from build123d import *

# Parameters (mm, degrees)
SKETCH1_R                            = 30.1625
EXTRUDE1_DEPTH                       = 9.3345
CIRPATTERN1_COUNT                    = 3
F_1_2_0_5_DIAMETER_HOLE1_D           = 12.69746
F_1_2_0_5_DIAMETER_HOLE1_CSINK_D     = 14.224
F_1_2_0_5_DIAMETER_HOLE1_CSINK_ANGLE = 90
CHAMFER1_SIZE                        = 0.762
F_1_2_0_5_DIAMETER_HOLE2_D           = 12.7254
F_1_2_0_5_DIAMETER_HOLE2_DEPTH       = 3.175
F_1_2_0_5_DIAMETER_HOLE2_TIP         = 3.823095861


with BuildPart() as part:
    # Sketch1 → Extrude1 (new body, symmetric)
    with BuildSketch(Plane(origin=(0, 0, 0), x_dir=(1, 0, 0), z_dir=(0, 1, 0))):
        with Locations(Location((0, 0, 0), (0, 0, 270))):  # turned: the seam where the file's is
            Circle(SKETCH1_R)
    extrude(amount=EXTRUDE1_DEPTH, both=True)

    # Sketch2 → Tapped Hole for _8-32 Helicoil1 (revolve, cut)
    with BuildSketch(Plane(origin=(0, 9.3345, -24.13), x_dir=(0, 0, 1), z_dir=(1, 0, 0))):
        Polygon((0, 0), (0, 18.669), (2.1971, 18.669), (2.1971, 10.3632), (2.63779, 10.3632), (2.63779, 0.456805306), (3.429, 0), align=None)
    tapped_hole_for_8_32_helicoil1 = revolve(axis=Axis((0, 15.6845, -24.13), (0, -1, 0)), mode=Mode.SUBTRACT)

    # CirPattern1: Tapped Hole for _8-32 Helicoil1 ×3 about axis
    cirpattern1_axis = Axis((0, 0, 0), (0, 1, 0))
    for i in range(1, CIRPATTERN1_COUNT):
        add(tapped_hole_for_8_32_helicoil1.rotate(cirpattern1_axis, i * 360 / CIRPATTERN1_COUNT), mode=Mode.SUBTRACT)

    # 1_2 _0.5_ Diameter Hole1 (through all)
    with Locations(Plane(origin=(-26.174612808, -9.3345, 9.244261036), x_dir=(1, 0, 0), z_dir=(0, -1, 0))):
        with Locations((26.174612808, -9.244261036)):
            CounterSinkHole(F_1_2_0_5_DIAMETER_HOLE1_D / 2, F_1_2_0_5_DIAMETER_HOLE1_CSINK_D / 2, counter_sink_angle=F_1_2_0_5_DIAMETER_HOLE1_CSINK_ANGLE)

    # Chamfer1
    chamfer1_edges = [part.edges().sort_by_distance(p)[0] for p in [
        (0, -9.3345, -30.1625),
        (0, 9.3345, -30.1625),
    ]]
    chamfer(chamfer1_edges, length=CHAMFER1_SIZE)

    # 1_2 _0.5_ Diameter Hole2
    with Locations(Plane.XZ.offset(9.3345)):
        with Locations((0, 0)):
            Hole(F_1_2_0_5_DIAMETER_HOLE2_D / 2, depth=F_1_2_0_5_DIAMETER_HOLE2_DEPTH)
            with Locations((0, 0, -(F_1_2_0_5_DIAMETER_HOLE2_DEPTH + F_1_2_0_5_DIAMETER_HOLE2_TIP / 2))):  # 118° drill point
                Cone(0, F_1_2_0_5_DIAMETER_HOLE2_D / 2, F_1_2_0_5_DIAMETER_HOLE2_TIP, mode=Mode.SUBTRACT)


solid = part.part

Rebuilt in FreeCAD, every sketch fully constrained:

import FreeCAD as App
import Part
import Sketcher

V = App.Vector
Q = App.Units.Quantity


def edges_at(feature, points):
    """Names of the edges that pass closest to the given points."""
    edges = feature.Shape.Edges
    near = lambda p: min(range(len(edges)), key=lambda i: edges[i].distToShape(Part.Vertex(*p))[0])
    return sorted({f"Edge{near(p) + 1}" for p in points})

doc = App.newDocument("Part")
body = doc.addObject("PartDesign::Body", "Body")

# Sketch on XZ plane
sketch1 = body.newObject("Sketcher::SketchObject", "Sketch")
sketch1.AttachmentSupport = (doc.getObject("XZ_Plane"), [""])
sketch1.MapMode = "FlatFace"
sketch1.addGeometry(Part.Circle(V(0, 0, 0), V(0, 0, 1), 30.1625), False)
sketch1.addConstraint([
    Sketcher.Constraint("Coincident", 0, 3, -1, 1),
    Sketcher.Constraint("Diameter", 0, Q("2.375 in")),
])
pad1 = body.newObject("PartDesign::Pad", "Pad")
pad1.Profile = sketch1
pad1.Length = Q("0.735 in")
pad1.Midplane = True

# Sketch on YZ plane
sketch2 = body.newObject("Sketcher::SketchObject", "Sketch001")
sketch2.AttachmentSupport = (doc.getObject("YZ_Plane"), [""])
sketch2.MapMode = "FlatFace"
sketch2.addGeometry([
    Part.LineSegment(V(-9.3345, -24.13, 0), V(9.3345, -24.13, 0)),  # 0
    Part.LineSegment(V(9.3345, -24.13, 0), V(9.3345, -20.701, 0)),  # 1
    Part.LineSegment(V(9.3345, -20.701, 0), V(8.877695, -21.49221, 0)),  # 2
    Part.LineSegment(V(8.877695, -21.49221, 0), V(-1.0287, -21.49221, 0)),  # 3
    Part.LineSegment(V(-1.0287, -21.49221, 0), V(-1.0287, -21.9329, 0)),  # 4
    Part.LineSegment(V(-1.0287, -21.9329, 0), V(-9.3345, -21.9329, 0)),  # 5
    Part.LineSegment(V(-9.3345, -21.9329, 0), V(-9.3345, -24.13, 0)),  # 6
], False)
sketch2.addGeometry(Part.LineSegment(V(9.3345, -24.13, 0), V(-9.3345, -24.13, 0)), True)  # axis
sketch2.addConstraint([
    Sketcher.Constraint("Coincident", 0, 2, 1, 1),
    Sketcher.Constraint("Coincident", 1, 2, 2, 1),
    Sketcher.Constraint("Coincident", 2, 2, 3, 1),
    Sketcher.Constraint("Coincident", 3, 2, 4, 1),
    Sketcher.Constraint("Coincident", 4, 2, 5, 1),
    Sketcher.Constraint("Coincident", 5, 2, 6, 1),
    Sketcher.Constraint("Coincident", 6, 2, 0, 1),
    Sketcher.Constraint("Horizontal", 0),
    Sketcher.Constraint("Vertical", 1),
    Sketcher.Constraint("Horizontal", 3),
    Sketcher.Constraint("Vertical", 4),
    Sketcher.Constraint("Horizontal", 5),
    Sketcher.Constraint("Vertical", 6),
    Sketcher.Constraint("Horizontal", 7),
    Sketcher.Constraint("Coincident", 7, 1, 0, 2),
    Sketcher.Constraint("Vertical", 5, 2, 7, 2),
    Sketcher.Constraint("Angle", 2, Q("-120 deg")),
    Sketcher.Constraint("DistanceX", 0, 1, 0, 2, Q("0.735 in")),
    Sketcher.Constraint("DistanceX", 5, 2, 5, 1, Q("0.327 in")),
    Sketcher.Constraint("DistanceY", 1, 1, 1, 2, Q("0.135 in")),
    Sketcher.Constraint("DistanceY", 0, 2, -1, 1, Q("0.95 in")),
    Sketcher.Constraint("DistanceY", 6, 2, 6, 1, Q("0.0865 in")),
    Sketcher.Constraint("DistanceX", -1, 1, 0, 2, Q("0.3675 in")),
    Sketcher.Constraint("DistanceY", 4, 2, 4, 1, 0.44069),
])
groove = body.newObject("PartDesign::Groove", "Groove")
groove.Profile = sketch2
groove.ReferenceAxis = (sketch2, ["Axis0"])
groove.Angle = 360
doc.recompute()

polarpattern = body.newObject("PartDesign::PolarPattern", "PolarPattern")
polarpattern.Originals = [groove]
polarpattern.Axis = (doc.getObject("Y_Axis"), [""])
polarpattern.Angle = 360
polarpattern.Occurrences = 3
body.Tip = polarpattern

# Sketch on XZ plane
sketch3 = body.newObject("Sketcher::SketchObject", "Sketch002")
sketch3.AttachmentSupport = (doc.getObject("XZ_Plane"), [""])
sketch3.MapMode = "FlatFace"
sketch3.AttachmentOffset = App.Placement(V(0, 0, 0.3675 * 25.4), App.Rotation())
sketch3.addGeometry(Part.Circle(V(0, 0, 0), V(0, 0, 1), 6.34873), False)
sketch3.addConstraint([
    Sketcher.Constraint("Coincident", 0, 3, -1, 1),
    Sketcher.Constraint("Diameter", 0, Q("0.4999 in")),
])
doc.recompute()
hole = body.newObject("PartDesign::Hole", "Hole")
hole.Profile = sketch3
hole.ThreadType = "None"
hole.Diameter = Q("0.4999 in")
hole.DepthType = "ThroughAll"
hole.HoleCutType = "Countersink"
hole.HoleCutDiameter = Q("0.56 in")
hole.HoleCutCountersinkAngle = 90
doc.recompute()

chamfer = body.newObject("PartDesign::Chamfer", "Chamfer")
chamfer.Base = (hole, edges_at(hole, [(0, -9.335, -30.163), (0, 9.335, -30.163)]))
chamfer.Size = Q("0.03 in")

# Sketch on XZ plane
sketch4 = body.newObject("Sketcher::SketchObject", "Sketch003")
sketch4.AttachmentSupport = (doc.getObject("XZ_Plane"), [""])
sketch4.MapMode = "FlatFace"
sketch4.AttachmentOffset = App.Placement(V(0, 0, 0.3675 * 25.4), App.Rotation())
sketch4.addGeometry(Part.Circle(V(0, 0, 0), V(0, 0, 1), 6.3627), False)
sketch4.addConstraint([
    Sketcher.Constraint("Coincident", 0, 3, -1, 1),
    Sketcher.Constraint("Diameter", 0, Q("0.501 in")),
])
doc.recompute()
hole2 = body.newObject("PartDesign::Hole", "Hole001")
hole2.Profile = sketch4
hole2.ThreadType = "None"
hole2.Diameter = Q("0.501 in")
hole2.DepthType = "Dimension"
hole2.Depth = Q("0.125 in")
hole2.DrillPoint = "Angled"
hole2.DrillPointAngle = 118

doc.recompute()
